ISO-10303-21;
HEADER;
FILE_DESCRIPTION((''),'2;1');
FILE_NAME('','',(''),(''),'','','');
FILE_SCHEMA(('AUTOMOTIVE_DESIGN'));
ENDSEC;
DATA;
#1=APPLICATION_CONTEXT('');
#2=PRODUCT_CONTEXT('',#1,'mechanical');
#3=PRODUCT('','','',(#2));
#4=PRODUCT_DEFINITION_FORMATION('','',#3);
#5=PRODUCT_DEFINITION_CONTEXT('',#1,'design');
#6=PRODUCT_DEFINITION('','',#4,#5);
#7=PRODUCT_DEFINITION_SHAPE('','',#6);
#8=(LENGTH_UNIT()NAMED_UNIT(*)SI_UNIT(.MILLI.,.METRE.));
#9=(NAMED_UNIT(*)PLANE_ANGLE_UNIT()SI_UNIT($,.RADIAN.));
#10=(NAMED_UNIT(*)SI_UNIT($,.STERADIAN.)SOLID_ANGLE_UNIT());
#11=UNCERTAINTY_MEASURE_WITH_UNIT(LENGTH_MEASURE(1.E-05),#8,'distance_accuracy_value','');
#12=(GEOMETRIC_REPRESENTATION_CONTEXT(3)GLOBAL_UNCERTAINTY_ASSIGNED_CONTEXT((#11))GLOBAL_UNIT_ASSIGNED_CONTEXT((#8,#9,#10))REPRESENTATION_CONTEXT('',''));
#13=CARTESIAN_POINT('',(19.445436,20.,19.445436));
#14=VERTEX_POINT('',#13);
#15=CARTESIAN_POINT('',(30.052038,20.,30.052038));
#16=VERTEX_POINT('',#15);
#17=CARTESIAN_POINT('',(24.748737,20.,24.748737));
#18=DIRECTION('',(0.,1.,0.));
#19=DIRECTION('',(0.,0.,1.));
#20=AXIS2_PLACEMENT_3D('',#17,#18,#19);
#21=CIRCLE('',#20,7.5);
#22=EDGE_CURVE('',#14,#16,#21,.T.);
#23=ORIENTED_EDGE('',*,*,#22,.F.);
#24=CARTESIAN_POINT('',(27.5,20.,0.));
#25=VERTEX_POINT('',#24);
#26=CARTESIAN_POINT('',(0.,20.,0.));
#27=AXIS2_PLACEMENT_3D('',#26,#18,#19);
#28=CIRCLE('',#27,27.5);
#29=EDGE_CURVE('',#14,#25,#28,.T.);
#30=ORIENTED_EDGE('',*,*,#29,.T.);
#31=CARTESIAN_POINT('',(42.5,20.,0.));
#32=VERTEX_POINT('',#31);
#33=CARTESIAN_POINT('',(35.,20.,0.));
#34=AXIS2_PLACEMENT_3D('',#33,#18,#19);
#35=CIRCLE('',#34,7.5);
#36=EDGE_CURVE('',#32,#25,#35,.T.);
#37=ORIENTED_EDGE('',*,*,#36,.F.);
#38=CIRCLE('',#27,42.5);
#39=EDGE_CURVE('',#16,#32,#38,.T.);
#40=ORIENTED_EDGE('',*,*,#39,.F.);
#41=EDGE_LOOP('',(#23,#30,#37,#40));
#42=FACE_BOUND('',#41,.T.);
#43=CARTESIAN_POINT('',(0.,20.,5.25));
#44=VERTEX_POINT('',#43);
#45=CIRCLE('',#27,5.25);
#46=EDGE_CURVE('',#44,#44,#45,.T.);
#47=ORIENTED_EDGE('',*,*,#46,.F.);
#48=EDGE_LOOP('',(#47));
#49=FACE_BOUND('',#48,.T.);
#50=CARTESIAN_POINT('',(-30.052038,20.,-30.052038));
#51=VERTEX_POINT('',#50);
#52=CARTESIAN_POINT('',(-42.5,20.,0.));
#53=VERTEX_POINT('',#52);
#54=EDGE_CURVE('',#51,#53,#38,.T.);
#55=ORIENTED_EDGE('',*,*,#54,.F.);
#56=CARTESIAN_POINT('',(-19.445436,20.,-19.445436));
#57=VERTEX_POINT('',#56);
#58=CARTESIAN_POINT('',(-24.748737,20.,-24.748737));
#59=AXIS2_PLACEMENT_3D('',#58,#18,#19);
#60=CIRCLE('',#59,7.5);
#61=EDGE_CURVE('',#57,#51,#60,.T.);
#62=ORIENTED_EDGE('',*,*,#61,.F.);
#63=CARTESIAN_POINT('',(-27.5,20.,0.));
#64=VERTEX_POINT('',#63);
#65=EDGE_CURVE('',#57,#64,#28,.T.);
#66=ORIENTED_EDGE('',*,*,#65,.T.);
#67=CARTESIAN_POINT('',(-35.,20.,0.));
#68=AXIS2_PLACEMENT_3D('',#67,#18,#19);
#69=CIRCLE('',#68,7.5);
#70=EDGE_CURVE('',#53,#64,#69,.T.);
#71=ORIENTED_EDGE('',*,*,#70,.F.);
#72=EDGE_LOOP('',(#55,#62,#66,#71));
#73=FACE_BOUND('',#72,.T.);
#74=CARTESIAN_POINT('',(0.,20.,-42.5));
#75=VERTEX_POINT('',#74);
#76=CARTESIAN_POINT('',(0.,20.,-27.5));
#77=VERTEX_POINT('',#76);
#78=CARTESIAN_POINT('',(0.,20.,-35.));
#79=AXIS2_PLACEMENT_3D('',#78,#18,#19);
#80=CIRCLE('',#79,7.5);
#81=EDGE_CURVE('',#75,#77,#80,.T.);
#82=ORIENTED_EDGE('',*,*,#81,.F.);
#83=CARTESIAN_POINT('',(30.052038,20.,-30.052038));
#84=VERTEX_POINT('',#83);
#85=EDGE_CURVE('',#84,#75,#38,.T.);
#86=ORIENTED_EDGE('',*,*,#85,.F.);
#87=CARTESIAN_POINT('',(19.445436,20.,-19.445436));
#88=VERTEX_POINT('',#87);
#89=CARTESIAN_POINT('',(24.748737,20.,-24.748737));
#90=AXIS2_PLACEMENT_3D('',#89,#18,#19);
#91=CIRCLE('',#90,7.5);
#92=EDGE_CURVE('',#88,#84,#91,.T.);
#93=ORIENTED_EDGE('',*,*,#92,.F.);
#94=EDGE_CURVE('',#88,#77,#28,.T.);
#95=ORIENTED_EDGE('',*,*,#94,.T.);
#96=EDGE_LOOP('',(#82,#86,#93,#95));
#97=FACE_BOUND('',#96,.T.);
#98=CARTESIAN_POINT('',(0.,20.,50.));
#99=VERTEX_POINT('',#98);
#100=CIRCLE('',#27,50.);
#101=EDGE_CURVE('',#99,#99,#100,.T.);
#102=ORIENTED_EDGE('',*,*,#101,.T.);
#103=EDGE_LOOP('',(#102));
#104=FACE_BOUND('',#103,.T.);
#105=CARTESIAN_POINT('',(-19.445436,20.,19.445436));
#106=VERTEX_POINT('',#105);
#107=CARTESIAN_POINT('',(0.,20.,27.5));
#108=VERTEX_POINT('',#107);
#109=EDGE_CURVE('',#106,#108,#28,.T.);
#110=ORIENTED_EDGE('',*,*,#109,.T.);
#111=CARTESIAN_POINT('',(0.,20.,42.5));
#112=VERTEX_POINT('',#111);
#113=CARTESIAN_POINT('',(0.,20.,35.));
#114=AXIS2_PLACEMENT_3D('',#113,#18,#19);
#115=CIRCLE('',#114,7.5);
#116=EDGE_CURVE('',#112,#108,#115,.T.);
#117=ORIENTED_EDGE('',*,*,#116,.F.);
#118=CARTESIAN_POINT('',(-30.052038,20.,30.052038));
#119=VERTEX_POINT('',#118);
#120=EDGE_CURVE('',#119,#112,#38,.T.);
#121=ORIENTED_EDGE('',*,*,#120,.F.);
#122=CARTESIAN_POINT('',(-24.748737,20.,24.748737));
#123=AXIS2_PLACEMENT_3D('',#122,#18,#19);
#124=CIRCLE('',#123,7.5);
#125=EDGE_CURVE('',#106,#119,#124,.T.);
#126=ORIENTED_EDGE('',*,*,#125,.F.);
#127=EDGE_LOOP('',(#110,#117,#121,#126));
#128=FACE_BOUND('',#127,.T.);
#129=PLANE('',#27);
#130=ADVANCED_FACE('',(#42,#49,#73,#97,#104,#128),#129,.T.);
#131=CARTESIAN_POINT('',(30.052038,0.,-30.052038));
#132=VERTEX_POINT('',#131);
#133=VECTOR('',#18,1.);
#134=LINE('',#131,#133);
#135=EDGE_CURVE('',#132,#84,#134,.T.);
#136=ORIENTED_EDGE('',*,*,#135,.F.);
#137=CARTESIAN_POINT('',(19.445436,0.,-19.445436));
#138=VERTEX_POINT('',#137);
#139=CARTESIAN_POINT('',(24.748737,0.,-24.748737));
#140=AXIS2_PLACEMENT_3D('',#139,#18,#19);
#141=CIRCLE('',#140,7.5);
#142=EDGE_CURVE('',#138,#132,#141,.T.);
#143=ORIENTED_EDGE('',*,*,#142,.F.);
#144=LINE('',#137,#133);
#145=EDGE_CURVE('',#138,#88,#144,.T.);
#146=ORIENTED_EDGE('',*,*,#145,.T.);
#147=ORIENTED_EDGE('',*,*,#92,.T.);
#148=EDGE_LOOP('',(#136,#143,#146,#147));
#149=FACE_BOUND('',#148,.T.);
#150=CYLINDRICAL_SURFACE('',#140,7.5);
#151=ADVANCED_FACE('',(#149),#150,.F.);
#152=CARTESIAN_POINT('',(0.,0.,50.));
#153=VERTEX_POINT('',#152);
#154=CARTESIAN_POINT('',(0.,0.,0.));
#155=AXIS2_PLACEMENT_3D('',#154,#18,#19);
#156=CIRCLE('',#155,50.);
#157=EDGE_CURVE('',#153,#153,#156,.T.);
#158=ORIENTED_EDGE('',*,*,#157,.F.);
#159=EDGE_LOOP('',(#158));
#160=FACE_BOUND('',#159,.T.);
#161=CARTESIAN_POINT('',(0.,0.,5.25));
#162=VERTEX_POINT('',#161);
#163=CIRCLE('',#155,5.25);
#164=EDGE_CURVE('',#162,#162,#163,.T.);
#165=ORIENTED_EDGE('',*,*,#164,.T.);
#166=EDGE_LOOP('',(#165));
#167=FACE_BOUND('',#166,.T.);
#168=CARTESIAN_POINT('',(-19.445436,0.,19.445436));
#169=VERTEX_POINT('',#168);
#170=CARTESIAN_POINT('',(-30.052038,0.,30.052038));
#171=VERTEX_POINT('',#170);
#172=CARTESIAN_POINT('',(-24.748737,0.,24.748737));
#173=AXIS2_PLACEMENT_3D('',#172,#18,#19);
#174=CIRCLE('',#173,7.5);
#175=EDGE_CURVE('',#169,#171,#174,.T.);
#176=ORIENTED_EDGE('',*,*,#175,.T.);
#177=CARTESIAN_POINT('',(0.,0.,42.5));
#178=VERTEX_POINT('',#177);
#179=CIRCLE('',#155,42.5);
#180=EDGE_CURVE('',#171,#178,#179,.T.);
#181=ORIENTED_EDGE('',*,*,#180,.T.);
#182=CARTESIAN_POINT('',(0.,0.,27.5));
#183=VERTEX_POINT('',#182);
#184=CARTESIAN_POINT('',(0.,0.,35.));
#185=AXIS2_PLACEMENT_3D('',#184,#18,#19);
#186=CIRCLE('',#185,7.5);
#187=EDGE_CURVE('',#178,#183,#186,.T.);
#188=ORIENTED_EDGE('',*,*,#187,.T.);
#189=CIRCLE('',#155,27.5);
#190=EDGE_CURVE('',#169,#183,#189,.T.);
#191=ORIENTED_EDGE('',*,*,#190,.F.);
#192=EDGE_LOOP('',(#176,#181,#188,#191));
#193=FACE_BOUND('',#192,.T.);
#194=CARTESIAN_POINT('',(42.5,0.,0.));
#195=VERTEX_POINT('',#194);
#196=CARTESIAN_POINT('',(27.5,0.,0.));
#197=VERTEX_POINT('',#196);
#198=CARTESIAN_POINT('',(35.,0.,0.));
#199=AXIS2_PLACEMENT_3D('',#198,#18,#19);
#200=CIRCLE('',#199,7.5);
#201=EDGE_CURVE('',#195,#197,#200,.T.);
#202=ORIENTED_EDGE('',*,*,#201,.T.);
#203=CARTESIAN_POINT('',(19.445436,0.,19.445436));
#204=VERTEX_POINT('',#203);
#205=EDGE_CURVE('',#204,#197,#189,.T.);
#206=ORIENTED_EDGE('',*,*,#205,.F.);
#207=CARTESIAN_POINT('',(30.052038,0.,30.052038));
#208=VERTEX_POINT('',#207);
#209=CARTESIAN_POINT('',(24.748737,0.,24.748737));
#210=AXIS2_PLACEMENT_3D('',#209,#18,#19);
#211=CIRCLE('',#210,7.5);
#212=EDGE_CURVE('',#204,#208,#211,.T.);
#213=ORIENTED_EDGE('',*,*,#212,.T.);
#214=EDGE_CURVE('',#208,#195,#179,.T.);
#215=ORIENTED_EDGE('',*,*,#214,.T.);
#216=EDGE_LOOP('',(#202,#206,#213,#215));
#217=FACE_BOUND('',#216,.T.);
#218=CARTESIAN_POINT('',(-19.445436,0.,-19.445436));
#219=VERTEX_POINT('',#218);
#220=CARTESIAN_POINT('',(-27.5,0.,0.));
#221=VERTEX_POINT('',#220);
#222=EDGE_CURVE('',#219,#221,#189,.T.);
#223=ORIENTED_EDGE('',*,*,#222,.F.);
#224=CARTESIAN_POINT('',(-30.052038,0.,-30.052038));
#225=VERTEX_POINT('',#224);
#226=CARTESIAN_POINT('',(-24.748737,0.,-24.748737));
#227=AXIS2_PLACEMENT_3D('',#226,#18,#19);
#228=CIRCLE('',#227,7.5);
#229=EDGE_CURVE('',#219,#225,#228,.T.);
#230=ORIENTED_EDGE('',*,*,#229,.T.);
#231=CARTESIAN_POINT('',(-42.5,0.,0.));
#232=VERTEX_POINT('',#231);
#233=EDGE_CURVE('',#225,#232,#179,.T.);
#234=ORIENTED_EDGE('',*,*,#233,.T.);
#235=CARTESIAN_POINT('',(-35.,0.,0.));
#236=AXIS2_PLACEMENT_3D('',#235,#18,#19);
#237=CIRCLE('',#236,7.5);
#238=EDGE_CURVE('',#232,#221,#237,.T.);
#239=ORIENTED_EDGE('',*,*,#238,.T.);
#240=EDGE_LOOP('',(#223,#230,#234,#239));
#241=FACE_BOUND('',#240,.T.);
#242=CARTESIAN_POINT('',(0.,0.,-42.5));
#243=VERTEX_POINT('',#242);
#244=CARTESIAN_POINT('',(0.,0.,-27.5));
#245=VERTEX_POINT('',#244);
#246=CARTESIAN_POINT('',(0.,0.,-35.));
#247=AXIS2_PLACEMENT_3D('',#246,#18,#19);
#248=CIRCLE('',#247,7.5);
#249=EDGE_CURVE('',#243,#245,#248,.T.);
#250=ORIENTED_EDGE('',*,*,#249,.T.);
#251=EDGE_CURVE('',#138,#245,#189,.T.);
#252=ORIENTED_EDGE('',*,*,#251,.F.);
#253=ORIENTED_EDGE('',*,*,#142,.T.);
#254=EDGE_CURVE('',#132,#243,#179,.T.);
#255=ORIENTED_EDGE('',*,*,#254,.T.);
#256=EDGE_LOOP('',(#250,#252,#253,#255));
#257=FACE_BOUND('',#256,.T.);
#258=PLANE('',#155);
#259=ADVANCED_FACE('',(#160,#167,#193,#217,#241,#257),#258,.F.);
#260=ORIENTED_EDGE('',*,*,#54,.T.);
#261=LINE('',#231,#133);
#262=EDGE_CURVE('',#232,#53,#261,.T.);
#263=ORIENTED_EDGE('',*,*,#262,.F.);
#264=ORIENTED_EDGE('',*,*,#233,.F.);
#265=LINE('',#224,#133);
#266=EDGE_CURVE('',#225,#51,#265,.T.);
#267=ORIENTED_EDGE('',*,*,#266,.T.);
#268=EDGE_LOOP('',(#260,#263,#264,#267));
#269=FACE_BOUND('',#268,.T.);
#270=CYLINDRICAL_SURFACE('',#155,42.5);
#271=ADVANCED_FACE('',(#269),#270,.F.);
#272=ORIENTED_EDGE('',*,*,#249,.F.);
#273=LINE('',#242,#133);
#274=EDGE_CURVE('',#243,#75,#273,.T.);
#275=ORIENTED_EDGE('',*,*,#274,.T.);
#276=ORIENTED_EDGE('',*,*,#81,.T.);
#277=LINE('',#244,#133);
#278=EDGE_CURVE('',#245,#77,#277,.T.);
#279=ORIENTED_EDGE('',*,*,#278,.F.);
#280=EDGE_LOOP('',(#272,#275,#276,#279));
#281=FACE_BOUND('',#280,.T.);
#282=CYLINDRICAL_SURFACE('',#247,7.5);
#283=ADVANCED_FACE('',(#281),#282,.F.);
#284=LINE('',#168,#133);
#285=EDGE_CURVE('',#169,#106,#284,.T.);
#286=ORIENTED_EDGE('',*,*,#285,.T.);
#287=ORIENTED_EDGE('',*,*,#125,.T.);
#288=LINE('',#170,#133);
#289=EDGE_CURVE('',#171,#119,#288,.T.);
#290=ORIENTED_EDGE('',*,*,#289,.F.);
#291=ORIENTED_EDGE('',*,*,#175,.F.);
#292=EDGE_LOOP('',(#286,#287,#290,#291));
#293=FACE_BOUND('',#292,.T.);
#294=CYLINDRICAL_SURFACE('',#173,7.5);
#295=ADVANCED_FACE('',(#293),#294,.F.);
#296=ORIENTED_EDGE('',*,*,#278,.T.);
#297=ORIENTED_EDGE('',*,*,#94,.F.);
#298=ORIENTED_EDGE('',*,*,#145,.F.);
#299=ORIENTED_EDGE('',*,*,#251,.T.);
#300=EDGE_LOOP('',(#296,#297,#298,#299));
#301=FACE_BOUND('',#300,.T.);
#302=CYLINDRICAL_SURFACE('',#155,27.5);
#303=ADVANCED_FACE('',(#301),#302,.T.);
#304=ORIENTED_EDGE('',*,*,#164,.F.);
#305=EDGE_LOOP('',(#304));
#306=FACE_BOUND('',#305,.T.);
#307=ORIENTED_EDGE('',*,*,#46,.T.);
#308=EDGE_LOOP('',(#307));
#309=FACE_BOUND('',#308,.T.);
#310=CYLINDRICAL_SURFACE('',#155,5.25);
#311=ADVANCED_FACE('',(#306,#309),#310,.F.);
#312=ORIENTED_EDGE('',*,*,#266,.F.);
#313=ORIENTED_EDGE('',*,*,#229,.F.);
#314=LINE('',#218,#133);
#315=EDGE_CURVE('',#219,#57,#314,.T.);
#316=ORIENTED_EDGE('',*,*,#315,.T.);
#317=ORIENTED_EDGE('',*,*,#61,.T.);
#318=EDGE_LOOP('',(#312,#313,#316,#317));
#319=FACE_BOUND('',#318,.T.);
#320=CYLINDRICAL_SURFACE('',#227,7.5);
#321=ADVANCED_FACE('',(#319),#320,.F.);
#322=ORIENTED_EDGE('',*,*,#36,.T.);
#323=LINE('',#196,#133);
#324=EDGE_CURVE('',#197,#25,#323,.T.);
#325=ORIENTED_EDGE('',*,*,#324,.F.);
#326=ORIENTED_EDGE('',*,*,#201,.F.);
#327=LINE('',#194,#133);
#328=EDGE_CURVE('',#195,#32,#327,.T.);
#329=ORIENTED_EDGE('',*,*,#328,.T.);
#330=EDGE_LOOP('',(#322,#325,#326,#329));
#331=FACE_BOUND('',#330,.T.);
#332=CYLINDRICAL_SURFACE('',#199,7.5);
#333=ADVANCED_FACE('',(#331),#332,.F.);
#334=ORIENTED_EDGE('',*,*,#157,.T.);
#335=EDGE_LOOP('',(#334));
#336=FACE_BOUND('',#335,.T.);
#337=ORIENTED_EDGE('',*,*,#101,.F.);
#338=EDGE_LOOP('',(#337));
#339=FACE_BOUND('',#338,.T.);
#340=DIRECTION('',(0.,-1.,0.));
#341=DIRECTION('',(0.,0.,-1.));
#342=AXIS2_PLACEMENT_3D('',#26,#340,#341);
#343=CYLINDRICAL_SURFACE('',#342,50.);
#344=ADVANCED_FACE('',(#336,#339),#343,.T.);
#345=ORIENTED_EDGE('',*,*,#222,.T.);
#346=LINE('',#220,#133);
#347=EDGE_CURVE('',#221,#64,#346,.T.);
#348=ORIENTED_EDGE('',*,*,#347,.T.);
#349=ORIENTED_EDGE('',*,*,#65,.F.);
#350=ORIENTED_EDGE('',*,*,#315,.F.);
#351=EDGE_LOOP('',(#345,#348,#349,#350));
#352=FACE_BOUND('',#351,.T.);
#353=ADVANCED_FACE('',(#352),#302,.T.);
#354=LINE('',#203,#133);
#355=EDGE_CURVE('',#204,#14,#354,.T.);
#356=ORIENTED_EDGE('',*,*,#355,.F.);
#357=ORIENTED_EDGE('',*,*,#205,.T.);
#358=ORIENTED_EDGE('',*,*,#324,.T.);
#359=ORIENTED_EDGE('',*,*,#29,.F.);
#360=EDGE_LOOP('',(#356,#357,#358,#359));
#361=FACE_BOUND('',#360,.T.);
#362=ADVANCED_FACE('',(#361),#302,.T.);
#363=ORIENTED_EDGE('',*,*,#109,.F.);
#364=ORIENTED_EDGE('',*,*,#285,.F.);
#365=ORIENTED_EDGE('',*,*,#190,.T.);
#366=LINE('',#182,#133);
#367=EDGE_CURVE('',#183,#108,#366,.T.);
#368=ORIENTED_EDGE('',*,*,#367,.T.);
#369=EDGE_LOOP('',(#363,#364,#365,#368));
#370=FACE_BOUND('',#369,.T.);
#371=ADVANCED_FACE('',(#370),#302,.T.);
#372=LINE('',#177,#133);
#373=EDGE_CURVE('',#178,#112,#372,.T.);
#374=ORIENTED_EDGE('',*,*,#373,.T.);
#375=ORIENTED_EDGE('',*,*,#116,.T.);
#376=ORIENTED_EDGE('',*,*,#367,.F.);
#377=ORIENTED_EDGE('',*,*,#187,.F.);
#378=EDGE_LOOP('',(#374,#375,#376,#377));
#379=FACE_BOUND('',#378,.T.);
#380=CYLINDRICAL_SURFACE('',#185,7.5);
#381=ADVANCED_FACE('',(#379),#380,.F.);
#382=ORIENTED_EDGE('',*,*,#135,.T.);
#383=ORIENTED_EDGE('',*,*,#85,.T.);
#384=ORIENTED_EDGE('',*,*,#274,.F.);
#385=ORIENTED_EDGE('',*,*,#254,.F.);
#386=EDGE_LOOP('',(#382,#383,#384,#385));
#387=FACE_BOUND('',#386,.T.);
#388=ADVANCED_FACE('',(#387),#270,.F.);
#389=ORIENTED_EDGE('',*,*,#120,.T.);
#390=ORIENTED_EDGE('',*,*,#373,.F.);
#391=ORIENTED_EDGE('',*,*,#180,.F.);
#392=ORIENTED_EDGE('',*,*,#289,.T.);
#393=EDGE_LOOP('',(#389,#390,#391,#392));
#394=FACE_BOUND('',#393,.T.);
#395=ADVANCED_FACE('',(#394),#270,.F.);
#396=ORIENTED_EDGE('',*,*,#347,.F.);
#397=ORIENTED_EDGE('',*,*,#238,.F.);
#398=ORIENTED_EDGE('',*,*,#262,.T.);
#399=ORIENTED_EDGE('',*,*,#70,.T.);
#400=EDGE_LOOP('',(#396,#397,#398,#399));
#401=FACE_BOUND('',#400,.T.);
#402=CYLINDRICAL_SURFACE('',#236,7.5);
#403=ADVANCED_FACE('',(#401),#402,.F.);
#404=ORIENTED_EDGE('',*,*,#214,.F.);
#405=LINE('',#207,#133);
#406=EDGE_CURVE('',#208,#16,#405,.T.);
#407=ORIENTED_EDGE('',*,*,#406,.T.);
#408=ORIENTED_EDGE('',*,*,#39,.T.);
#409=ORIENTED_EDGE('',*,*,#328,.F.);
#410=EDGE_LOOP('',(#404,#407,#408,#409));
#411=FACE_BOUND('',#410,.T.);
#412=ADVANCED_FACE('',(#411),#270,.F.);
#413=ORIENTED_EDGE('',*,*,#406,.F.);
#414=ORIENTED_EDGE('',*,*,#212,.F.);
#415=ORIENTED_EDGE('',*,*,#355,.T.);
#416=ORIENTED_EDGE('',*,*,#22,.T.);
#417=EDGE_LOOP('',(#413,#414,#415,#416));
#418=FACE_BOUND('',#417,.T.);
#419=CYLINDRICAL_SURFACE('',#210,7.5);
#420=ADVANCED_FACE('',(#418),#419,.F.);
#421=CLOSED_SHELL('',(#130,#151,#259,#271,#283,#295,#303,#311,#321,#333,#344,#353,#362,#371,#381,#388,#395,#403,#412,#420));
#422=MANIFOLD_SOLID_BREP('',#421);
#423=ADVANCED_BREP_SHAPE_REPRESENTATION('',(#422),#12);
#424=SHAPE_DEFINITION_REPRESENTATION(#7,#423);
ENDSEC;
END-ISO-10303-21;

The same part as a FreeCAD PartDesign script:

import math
import FreeCAD as App
import Part
import Sketcher
from FreeCAD import Vector

doc = App.newDocument("Part")
body = doc.addObject("PartDesign::Body", "Body")

sketch1 = body.newObject("Sketcher::SketchObject", "Sketch")
sketch1.AttachmentSupport = (doc.getObject("XZ_Plane"), [""])
sketch1.MapMode = "FlatFace"
sketch1.addGeometry(Part.Circle(Vector(0, 0, 0), Vector(0, 0, 1), 50), False)
sketch1.addConstraint([
    Sketcher.Constraint("Coincident", 0, 3, -1, 1),
    Sketcher.Constraint("Diameter", 0, 100.0),
])
pad1 = body.newObject("PartDesign::Pad", "Pad")
pad1.Profile = sketch1
pad1.Length = 20
pad1.Reversed = True

sketch2 = body.newObject("Sketcher::SketchObject", "Sketch001")
sketch2.AttachmentSupport = (doc.getObject("XZ_Plane"), [""])
sketch2.MapMode = "FlatFace"
sketch2.AttachmentOffset = App.Placement(Vector(0, 0, -20), App.Rotation())
sketch2.addGeometry(Part.Circle(Vector(0, 0, 0), Vector(0, 0, 1), 5), False)
sketch2.addConstraint([
    Sketcher.Constraint("Coincident", 0, 3, -1, 1),
    Sketcher.Constraint("Diameter", 0, 10.5),
])
pocket1 = body.newObject("PartDesign::Pocket", "Pocket")
pocket1.Profile = sketch2
pocket1.Length = 20
pocket1.Reversed = True

sketch3 = body.newObject("Sketcher::SketchObject", "Sketch002")
sketch3.AttachmentSupport = (doc.getObject("XZ_Plane"), [""])
sketch3.MapMode = "FlatFace"
sketch3.AttachmentOffset = App.Placement(Vector(0, 0, -20), App.Rotation())
sketch3.addGeometry([
    Part.ArcOfCircle(Part.Circle(Vector(35, 0, 0), Vector(0, 0, 1), 8), math.radians(180), math.radians(360)),
    Part.ArcOfCircle(Part.Circle(Vector(0, 0, 0), Vector(0, 0, 1), 28), math.radians(0), math.radians(45)),
    Part.ArcOfCircle(Part.Circle(Vector(25, 25, 0), Vector(0, 0, 1), 8), math.radians(45), math.radians(225)),
    Part.ArcOfCircle(Part.Circle(Vector(0, 0, 0), Vector(0, 0, 1), 42), math.radians(0), math.radians(45)),
    Part.ArcOfCircle(Part.Circle(Vector(0, 0, 0), Vector(0, 0, 1), 28), math.radians(-90), math.radians(-45)),
    Part.ArcOfCircle(Part.Circle(Vector(25, -25, 0), Vector(0, 0, 1), 7), math.radians(-45), math.radians(135)),
    Part.ArcOfCircle(Part.Circle(Vector(0, 0, 0), Vector(0, 0, 1), 42), math.radians(-90), math.radians(-45)),
    Part.ArcOfCircle(Part.Circle(Vector(0, -35, 0), Vector(0, 0, 1), 8), math.radians(90), math.radians(270)),
    Part.ArcOfCircle(Part.Circle(Vector(0, 0, 0), Vector(0, 0, 1), 43), math.radians(90), math.radians(135)),
    Part.ArcOfCircle(Part.Circle(Vector(0, 35, 0), Vector(0, 0, 1), 8), math.radians(-90), math.radians(90)),
    Part.ArcOfCircle(Part.Circle(Vector(0, 0, 0), Vector(0, 0, 1), 27), math.radians(90), math.radians(135)),
    Part.ArcOfCircle(Part.Circle(Vector(-25, 25, 0), Vector(0, 0, 1), 8), math.radians(135), math.radians(315)),
    Part.ArcOfCircle(Part.Circle(Vector(0, 0, 0), Vector(0, 0, 1), 28), math.radians(-180), math.radians(-135)),
    Part.ArcOfCircle(Part.Circle(Vector(-25, -25, 0), Vector(0, 0, 1), 8), math.radians(-135), math.radians(45)),
    Part.ArcOfCircle(Part.Circle(Vector(0, 0, 0), Vector(0, 0, 1), 43), math.radians(180), math.radians(225)),
    Part.ArcOfCircle(Part.Circle(Vector(-35, 0, 0), Vector(0, 0, 1), 8), math.radians(0), math.radians(180)),
], False)
sketch3.addConstraint([
    Sketcher.Constraint("Tangent", 0, 1, 1, 1),
    Sketcher.Constraint("Tangent", 1, 2, 2, 2),
    Sketcher.Constraint("Tangent", 2, 1, 3, 2),
    Sketcher.Constraint("Tangent", 3, 1, 0, 2),
    Sketcher.Constraint("Tangent", 4, 2, 5, 2),
    Sketcher.Constraint("Tangent", 5, 1, 6, 2),
    Sketcher.Constraint("Tangent", 6, 1, 7, 2),
    Sketcher.Constraint("Tangent", 7, 1, 4, 1),
    Sketcher.Constraint("Tangent", 8, 1, 9, 2),
    Sketcher.Constraint("Tangent", 9, 1, 10, 1),
    Sketcher.Constraint("Tangent", 10, 2, 11, 2),
    Sketcher.Constraint("Tangent", 11, 1, 8, 2),
    Sketcher.Constraint("Tangent", 12, 2, 13, 2),
    Sketcher.Constraint("Tangent", 13, 1, 14, 2),
    Sketcher.Constraint("Tangent", 14, 1, 15, 2),
    Sketcher.Constraint("Tangent", 15, 1, 12, 1),
    Sketcher.Constraint("Coincident", 1, 3, -1, 1),
    Sketcher.Constraint("Coincident", 3, 3, -1, 1),
    Sketcher.Constraint("Coincident", 4, 3, -1, 1),
    Sketcher.Constraint("Coincident", 6, 3, -1, 1),
    Sketcher.Constraint("Coincident", 8, 3, -1, 1),
    Sketcher.Constraint("Coincident", 10, 3, -1, 1),
    Sketcher.Constraint("Coincident", 12, 3, -1, 1),
    Sketcher.Constraint("Coincident", 14, 3, -1, 1),
    Sketcher.Constraint("Equal", 1, 4),
    Sketcher.Constraint("Equal", 2, 5),
    Sketcher.Constraint("Equal", 6, 8),
    Sketcher.Constraint("Equal", 7, 9),
    Sketcher.Constraint("Equal", 10, 12),
    Sketcher.Constraint("Equal", 11, 13),
    Sketcher.Constraint("PointOnObject", 0, 3, -1),
    Sketcher.Constraint("PointOnObject", 7, 3, -2),
    Sketcher.Constraint("PointOnObject", 9, 3, -2),
    Sketcher.Constraint("PointOnObject", 15, 3, -1),
    Sketcher.Constraint("Horizontal", 2, 3, 11, 3),
    Sketcher.Constraint("Horizontal", 5, 3, 13, 3),
    Sketcher.Constraint("Vertical", 2, 3, 5, 3),
    Sketcher.Constraint("Radius", 0, 7.5),
    Sketcher.Constraint("Radius", 1, 27.5),
    Sketcher.Constraint("DistanceX", 1, 2, 2, 3, 5.303301),
])
pocket2 = body.newObject("PartDesign::Pocket", "Pocket001")
pocket2.Profile = sketch3
pocket2.Length = 20
pocket2.Reversed = True

doc.recompute()
